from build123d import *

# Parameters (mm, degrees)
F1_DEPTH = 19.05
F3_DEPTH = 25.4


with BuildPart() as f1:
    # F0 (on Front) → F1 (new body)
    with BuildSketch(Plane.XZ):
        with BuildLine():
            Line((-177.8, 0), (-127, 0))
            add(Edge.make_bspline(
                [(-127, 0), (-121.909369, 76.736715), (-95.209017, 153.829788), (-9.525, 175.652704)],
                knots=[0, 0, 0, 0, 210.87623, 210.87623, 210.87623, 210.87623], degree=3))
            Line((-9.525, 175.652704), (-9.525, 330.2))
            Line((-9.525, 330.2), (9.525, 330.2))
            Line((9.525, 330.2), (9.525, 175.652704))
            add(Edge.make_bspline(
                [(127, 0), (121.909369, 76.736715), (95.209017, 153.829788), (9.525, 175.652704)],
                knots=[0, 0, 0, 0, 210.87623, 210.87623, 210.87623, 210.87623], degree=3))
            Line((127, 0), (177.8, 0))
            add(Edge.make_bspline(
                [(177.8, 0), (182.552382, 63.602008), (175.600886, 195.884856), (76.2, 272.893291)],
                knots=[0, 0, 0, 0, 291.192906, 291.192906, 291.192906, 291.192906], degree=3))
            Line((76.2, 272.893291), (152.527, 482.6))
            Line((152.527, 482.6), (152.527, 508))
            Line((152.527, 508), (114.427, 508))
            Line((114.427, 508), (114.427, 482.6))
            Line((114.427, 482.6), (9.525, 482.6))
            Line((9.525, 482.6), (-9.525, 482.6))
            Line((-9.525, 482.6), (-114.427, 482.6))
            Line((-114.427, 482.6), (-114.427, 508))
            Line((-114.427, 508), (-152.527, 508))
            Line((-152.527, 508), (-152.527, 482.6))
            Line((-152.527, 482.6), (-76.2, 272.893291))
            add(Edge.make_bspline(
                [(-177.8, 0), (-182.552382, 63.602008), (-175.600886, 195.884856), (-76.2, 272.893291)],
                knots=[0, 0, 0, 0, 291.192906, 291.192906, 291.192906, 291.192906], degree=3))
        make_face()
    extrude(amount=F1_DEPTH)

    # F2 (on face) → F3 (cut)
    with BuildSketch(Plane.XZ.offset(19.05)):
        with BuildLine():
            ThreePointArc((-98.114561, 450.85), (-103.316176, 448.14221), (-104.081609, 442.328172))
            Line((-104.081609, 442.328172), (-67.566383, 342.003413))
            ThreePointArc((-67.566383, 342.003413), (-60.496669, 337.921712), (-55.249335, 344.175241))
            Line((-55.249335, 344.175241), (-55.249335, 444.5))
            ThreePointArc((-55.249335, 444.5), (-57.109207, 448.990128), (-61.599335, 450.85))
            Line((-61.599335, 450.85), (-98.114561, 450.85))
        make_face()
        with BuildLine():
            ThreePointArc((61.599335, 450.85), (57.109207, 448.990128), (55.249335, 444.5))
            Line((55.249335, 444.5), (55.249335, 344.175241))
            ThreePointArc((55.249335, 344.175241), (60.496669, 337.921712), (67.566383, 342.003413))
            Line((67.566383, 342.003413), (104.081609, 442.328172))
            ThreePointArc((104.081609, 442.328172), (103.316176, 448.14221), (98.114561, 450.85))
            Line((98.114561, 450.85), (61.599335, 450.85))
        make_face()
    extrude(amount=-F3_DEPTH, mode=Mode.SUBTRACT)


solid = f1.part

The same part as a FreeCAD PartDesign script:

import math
import FreeCAD as App
import Part
import Sketcher
Q = App.Units.Quantity

doc = App.newDocument("Part")
body = doc.addObject("PartDesign::Body", "Body")

sketch1 = body.newObject("Sketcher::SketchObject", "Sketch")
sketch1.AttachmentSupport = (doc.getObject("XZ_Plane"), [""])
sketch1.MapMode = "FlatFace"
sketch1.addGeometry([
    Part.LineSegment(App.Vector(-177.8, 0, 0), App.Vector(-127, 0, 0)),
    Part.BSplineCurve([App.Vector(-127, 0, 0), App.Vector(-121.909369, 76.736715, 0), App.Vector(-95.209017, 153.829788, 0), App.Vector(-9.525, 175.652704, 0)], [4, 4], [0, 210.87623], False, 3, [1, 1, 1, 1], False),
    Part.LineSegment(App.Vector(-9.525, 175.652704, 0), App.Vector(-9.525, 330.2, 0)),
    Part.LineSegment(App.Vector(-9.525, 330.2, 0), App.Vector(9.525, 330.2, 0)),
    Part.LineSegment(App.Vector(9.525, 330.2, 0), App.Vector(9.525, 175.652704, 0)),
    Part.BSplineCurve([App.Vector(127, 0, 0), App.Vector(121.909369, 76.736715, 0), App.Vector(95.209017, 153.829788, 0), App.Vector(9.525, 175.652704, 0)], [4, 4], [0, 210.87623], False, 3, [1, 1, 1, 1], False),
    Part.LineSegment(App.Vector(127, 0, 0), App.Vector(177.8, 0, 0)),
    Part.BSplineCurve([App.Vector(177.8, 0, 0), App.Vector(182.552382, 63.602008, 0), App.Vector(175.600886, 195.884856, 0), App.Vector(76.2, 272.893291, 0)], [4, 4], [0, 291.192906], False, 3, [1, 1, 1, 1], False),
    Part.LineSegment(App.Vector(76.2, 272.893291, 0), App.Vector(152.527, 482.6, 0)),
    Part.LineSegment(App.Vector(152.527, 482.6, 0), App.Vector(152.527, 508, 0)),
    Part.LineSegment(App.Vector(152.527, 508, 0), App.Vector(114.427, 508, 0)),
    Part.LineSegment(App.Vector(114.427, 508, 0), App.Vector(114.427, 482.6, 0)),
    Part.LineSegment(App.Vector(114.427, 482.6, 0), App.Vector(-114.427, 482.6, 0)),
    Part.LineSegment(App.Vector(-114.427, 482.6, 0), App.Vector(-114.427, 508, 0)),
    Part.LineSegment(App.Vector(-114.427, 508, 0), App.Vector(-152.527, 508, 0)),
    Part.LineSegment(App.Vector(-152.527, 508, 0), App.Vector(-152.527, 482.6, 0)),
    Part.LineSegment(App.Vector(-152.527, 482.6, 0), App.Vector(-76.2, 272.893291, 0)),
    Part.BSplineCurve([App.Vector(-177.8, 0, 0), App.Vector(-182.552382, 63.602008, 0), App.Vector(-175.600886, 195.884856, 0), App.Vector(-76.2, 272.893291, 0)], [4, 4], [0, 291.192906], False, 3, [1, 1, 1, 1], False),
], False)
sketch1.addConstraint([
    Sketcher.Constraint("Block", 1),
    Sketcher.Constraint("Block", 5),
    Sketcher.Constraint("Block", 7),
    Sketcher.Constraint("Block", 17),
    Sketcher.Constraint("Coincident", 0, 2, 1, 1),
    Sketcher.Constraint("Coincident", 1, 2, 2, 1),
    Sketcher.Constraint("Coincident", 2, 2, 3, 1),
    Sketcher.Constraint("Coincident", 3, 2, 4, 1),
    Sketcher.Constraint("Coincident", 4, 2, 5, 2),
    Sketcher.Constraint("Coincident", 5, 1, 6, 1),
    Sketcher.Constraint("Coincident", 6, 2, 7, 1),
    Sketcher.Constraint("Coincident", 7, 2, 8, 1),
    Sketcher.Constraint("Coincident", 8, 2, 9, 1),
    Sketcher.Constraint("Coincident", 9, 2, 10, 1),
    Sketcher.Constraint("Coincident", 10, 2, 11, 1),
    Sketcher.Constraint("Coincident", 11, 2, 12, 1),
    Sketcher.Constraint("Coincident", 12, 2, 13, 1),
    Sketcher.Constraint("Coincident", 13, 2, 14, 1),
    Sketcher.Constraint("Coincident", 14, 2, 15, 1),
    Sketcher.Constraint("Coincident", 15, 2, 16, 1),
    Sketcher.Constraint("Coincident", 16, 2, 17, 2),
    Sketcher.Constraint("Coincident", 17, 1, 0, 1),
    Sketcher.Constraint("Vertical", 2),
    Sketcher.Constraint("Horizontal", 3),
    Sketcher.Constraint("Vertical", 4),
    Sketcher.Constraint("Vertical", 9),
    Sketcher.Constraint("Horizontal", 10),
    Sketcher.Constraint("Vertical", 11),
    Sketcher.Constraint("Horizontal", 12),
    Sketcher.Constraint("Vertical", 13),
    Sketcher.Constraint("Horizontal", 14),
    Sketcher.Constraint("Vertical", 15),
    Sketcher.Constraint("Symmetric", 10, 2, 13, 2, -2),
    Sketcher.Constraint("Symmetric", 8, 2, 15, 2, -2),
    Sketcher.Constraint("Horizontal", 8, 2, 11, 2),
    Sketcher.Constraint("DistanceY", 9, 1, 9, 2, Q("1 in")),
    Sketcher.Constraint("DistanceX", 10, 2, 10, 1, Q("1.5 in")),
    Sketcher.Constraint("DistanceY", -1, 1, 2, 2, Q("13 in")),
    Sketcher.Constraint("DistanceY", -1, 1, 8, 2, Q("19 in")),
    Sketcher.Constraint("Angle", 8, Q("70 deg")),
])
pad1 = body.newObject("PartDesign::Pad", "Pad")
pad1.Profile = sketch1
pad1.Length = Q("0.75 in")

sketch2 = body.newObject("Sketcher::SketchObject", "Sketch001")
sketch2.AttachmentSupport = (doc.getObject("XZ_Plane"), [""])
sketch2.MapMode = "FlatFace"
sketch2.AttachmentOffset = App.Placement(App.Vector(0, 0, 0.75 * 25.4), App.Rotation())
sketch2.addGeometry([
    Part.ArcOfCircle(Part.Circle(App.Vector(-98, 444, 0), App.Vector(0, 0, 1), 6), math.radians(90), math.radians(200)),
    Part.LineSegment(App.Vector(-104, 442, 0), App.Vector(-68, 342, 0)),
    Part.ArcOfCircle(Part.Circle(App.Vector(-62, 344, 0), App.Vector(0, 0, 1), 6), math.radians(-160), math.radians(0)),
    Part.LineSegment(App.Vector(-55, 344, 0), App.Vector(-55, 444, 0)),
    Part.ArcOfCircle(Part.Circle(App.Vector(-62, 444, 0), App.Vector(0, 0, 1), 6), math.radians(0), math.radians(90)),
    Part.LineSegment(App.Vector(-62, 451, 0), App.Vector(-98, 451, 0)),
    Part.ArcOfCircle(Part.Circle(App.Vector(62, 444, 0), App.Vector(0, 0, 1), 6), math.radians(90), math.radians(180)),
    Part.LineSegment(App.Vector(55, 444, 0), App.Vector(55, 344, 0)),
    Part.ArcOfCircle(Part.Circle(App.Vector(62, 344, 0), App.Vector(0, 0, 1), 6), math.radians(-180), math.radians(-20)),
    Part.LineSegment(App.Vector(68, 342, 0), App.Vector(104, 442, 0)),
    Part.ArcOfCircle(Part.Circle(App.Vector(98, 444, 0), App.Vector(0, 0, 1), 6), math.radians(-20), math.radians(90)),
    Part.LineSegment(App.Vector(98, 451, 0), App.Vector(62, 451, 0)),
], False)
sketch2.addConstraint([
    Sketcher.Constraint("Tangent", 0, 2, 1, 1),
    Sketcher.Constraint("Tangent", 1, 2, 2, 1),
    Sketcher.Constraint("Tangent", 2, 2, 3, 1),
    Sketcher.Constraint("Tangent", 3, 2, 4, 1),
    Sketcher.Constraint("Tangent", 4, 2, 5, 1),
    Sketcher.Constraint("Tangent", 5, 2, 0, 1),
    Sketcher.Constraint("Tangent", 6, 2, 7, 1),
    Sketcher.Constraint("Tangent", 7, 2, 8, 1),
    Sketcher.Constraint("Tangent", 8, 2, 9, 1),
    Sketcher.Constraint("Tangent", 9, 2, 10, 1),
    Sketcher.Constraint("Tangent", 10, 2, 11, 1),
    Sketcher.Constraint("Tangent", 11, 2, 6, 1),
    Sketcher.Constraint("Vertical", 3),
    Sketcher.Constraint("Horizontal", 5),
    Sketcher.Constraint("Vertical", 7),
    Sketcher.Constraint("Horizontal", 11),
    Sketcher.Constraint("Equal", 0, 2),
    Sketcher.Constraint("Equal", 2, 4),
    Sketcher.Constraint("Equal", 4, 6),
    Sketcher.Constraint("Equal", 6, 8),
    Sketcher.Constraint("Equal", 8, 10),
    Sketcher.Constraint("Symmetric", 4, 3, 6, 3, -2),
    Sketcher.Constraint("Symmetric", 1, 2, 8, 2, -2),
    Sketcher.Constraint("Radius", 0, Q("0.25 in")),
    Sketcher.Constraint("Angle", 1, Q("-70 deg")),
    Sketcher.Constraint("DistanceY", -1, 1, 0, 3, Q("17.5 in")),
    Sketcher.Constraint("DistanceY", 3, 1, 3, 2, Q("100.324759 mm")),
    Sketcher.Constraint("DistanceX", 0, 3, -1, 1, Q("98.11456 mm")),
])
pocket1 = body.newObject("PartDesign::Pocket", "Pocket")
pocket1.Profile = sketch2
pocket1.Length = Q("1 in")

doc.recompute()
